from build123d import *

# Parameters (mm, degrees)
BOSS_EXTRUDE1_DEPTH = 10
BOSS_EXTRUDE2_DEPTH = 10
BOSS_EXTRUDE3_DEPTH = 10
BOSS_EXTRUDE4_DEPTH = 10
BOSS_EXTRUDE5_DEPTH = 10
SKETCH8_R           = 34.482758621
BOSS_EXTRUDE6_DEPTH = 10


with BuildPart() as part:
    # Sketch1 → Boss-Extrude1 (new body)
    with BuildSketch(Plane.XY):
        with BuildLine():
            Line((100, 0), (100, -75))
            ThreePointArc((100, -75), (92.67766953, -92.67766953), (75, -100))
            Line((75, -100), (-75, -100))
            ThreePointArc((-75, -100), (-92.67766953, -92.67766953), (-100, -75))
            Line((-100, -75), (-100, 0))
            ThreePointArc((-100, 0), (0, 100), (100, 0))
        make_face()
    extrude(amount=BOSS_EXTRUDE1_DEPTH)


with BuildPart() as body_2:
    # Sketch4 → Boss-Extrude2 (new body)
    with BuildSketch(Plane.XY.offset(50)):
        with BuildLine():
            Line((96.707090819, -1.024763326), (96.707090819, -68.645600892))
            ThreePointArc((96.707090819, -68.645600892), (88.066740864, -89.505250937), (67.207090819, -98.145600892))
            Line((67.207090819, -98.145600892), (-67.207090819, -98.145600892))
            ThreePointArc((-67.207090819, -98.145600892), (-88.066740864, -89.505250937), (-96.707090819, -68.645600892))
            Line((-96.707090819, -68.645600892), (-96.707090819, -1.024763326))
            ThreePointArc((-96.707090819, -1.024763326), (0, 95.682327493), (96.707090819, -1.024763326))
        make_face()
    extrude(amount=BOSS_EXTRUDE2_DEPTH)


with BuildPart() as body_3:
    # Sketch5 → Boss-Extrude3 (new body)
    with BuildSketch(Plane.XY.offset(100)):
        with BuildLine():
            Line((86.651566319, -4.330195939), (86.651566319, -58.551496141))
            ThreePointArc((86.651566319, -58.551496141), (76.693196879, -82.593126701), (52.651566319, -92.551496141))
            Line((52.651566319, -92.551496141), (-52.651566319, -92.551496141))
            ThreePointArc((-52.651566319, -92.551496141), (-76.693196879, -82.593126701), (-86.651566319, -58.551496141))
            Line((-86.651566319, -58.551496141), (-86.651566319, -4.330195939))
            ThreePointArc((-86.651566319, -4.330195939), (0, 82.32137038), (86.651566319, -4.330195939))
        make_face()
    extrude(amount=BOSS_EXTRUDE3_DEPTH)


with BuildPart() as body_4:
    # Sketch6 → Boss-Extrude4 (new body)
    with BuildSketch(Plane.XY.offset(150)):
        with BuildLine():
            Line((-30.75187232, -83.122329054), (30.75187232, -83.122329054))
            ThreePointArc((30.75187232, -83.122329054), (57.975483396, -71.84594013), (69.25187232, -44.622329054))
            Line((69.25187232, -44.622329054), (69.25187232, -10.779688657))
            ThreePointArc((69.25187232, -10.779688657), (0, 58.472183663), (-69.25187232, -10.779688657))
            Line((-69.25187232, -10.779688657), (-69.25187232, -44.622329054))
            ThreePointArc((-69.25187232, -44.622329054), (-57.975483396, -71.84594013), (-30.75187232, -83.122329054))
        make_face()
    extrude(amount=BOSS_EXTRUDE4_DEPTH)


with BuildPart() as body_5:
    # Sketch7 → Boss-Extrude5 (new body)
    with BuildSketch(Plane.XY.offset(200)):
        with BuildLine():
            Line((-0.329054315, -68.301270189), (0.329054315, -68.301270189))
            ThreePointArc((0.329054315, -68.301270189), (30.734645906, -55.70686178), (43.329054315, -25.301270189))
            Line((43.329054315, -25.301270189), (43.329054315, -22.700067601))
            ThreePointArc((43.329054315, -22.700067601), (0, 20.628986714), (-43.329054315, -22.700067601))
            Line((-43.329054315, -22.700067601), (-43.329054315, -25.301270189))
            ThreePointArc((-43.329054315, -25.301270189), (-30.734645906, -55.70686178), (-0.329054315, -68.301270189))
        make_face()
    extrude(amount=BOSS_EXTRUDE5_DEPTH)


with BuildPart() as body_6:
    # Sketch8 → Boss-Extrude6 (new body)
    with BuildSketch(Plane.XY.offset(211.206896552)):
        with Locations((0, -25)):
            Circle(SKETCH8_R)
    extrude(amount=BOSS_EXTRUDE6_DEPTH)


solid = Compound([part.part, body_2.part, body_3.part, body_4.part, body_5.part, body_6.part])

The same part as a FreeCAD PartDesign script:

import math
import FreeCAD as App
import Part
import Sketcher
Q = App.Units.Quantity

doc = App.newDocument("Part")
body = doc.addObject("PartDesign::Body", "Body")

# Sketch on XY plane
sketch1 = doc.addObject("Sketcher::SketchObject", "Sketch")
body.addObject(sketch1)
sketch1.AttachmentSupport = (doc.XY_Plane, [""])
sketch1.MapMode = "FlatFace"
sketch1.addGeometry([
    Part.LineSegment(App.Vector(100, -75, 0), App.Vector(100, 0, 0)),  # 0
    Part.ArcOfCircle(Part.Circle(App.Vector(0, 0, 0), App.Vector(0, 0, 1), 100), math.radians(0), math.radians(180)),  # 1
    Part.LineSegment(App.Vector(-100, 0, 0), App.Vector(-100, -75, 0)),  # 2
    Part.ArcOfCircle(Part.Circle(App.Vector(-75, -75, 0), App.Vector(0, 0, 1), 25), math.radians(180), math.radians(270)),  # 3
    Part.LineSegment(App.Vector(-75, -100, 0), App.Vector(75, -100, 0)),  # 4
    Part.ArcOfCircle(Part.Circle(App.Vector(75, -75, 0), App.Vector(0, 0, 1), 25), math.radians(-90), math.radians(0)),  # 5
], False)
sketch1.addConstraint([
    Sketcher.Constraint("Tangent", 0, 2, 1, 1),
    Sketcher.Constraint("Tangent", 1, 2, 2, 1),
    Sketcher.Constraint("Tangent", 2, 2, 3, 1),
    Sketcher.Constraint("Tangent", 3, 2, 4, 1),
    Sketcher.Constraint("Tangent", 4, 2, 5, 1),
    Sketcher.Constraint("Tangent", 5, 2, 0, 1),
    Sketcher.Constraint("Vertical", 0),
    Sketcher.Constraint("Vertical", 2),
    Sketcher.Constraint("Horizontal", 4),
    Sketcher.Constraint("Coincident", 1, 3, -1, 1),
    Sketcher.Constraint("Equal", 3, 5),
    Sketcher.Constraint("Radius", 1, Q("100 mm")),
    Sketcher.Constraint("Radius", 3, Q("25 mm")),
    Sketcher.Constraint("DistanceY", 0, 1, 0, 2, Q("75 mm")),
])
pad1 = doc.addObject("PartDesign::Pad", "Pad")
body.addObject(pad1)
pad1.Profile = sketch1
pad1.Length = 10
body2 = doc.addObject("PartDesign::Body", "Body001")

# Sketch on XY plane
sketch2 = doc.addObject("Sketcher::SketchObject", "Sketch001")
body2.addObject(sketch2)
sketch2.AttachmentSupport = (doc.getObject("XY_Plane001"), [""])
sketch2.MapMode = "FlatFace"
sketch2.AttachmentOffset = App.Placement(App.Vector(0, 0, 50), App.Rotation())
sketch2.addGeometry([
    Part.LineSegment(App.Vector(97, -69, 0), App.Vector(97, -1, 0)),  # 0
    Part.ArcOfCircle(Part.Circle(App.Vector(0, -1, 0), App.Vector(0, 0, 1), 97), math.radians(0), math.radians(180)),  # 1
    Part.LineSegment(App.Vector(-97, -1, 0), App.Vector(-97, -69, 0)),  # 2
    Part.ArcOfCircle(Part.Circle(App.Vector(-67, -69, 0), App.Vector(0, 0, 1), 30), math.radians(180), math.radians(270)),  # 3
    Part.LineSegment(App.Vector(-67, -98, 0), App.Vector(67, -98, 0)),  # 4
    Part.ArcOfCircle(Part.Circle(App.Vector(67, -69, 0), App.Vector(0, 0, 1), 30), math.radians(-90), math.radians(0)),  # 5
], False)
sketch2.addConstraint([
    Sketcher.Constraint("Tangent", 0, 2, 1, 1),
    Sketcher.Constraint("Tangent", 1, 2, 2, 1),
    Sketcher.Constraint("Tangent", 2, 2, 3, 1),
    Sketcher.Constraint("Tangent", 3, 2, 4, 1),
    Sketcher.Constraint("Tangent", 4, 2, 5, 1),
    Sketcher.Constraint("Tangent", 5, 2, 0, 1),
    Sketcher.Constraint("Vertical", 0),
    Sketcher.Constraint("Vertical", 2),
    Sketcher.Constraint("Horizontal", 4),
    Sketcher.Constraint("Equal", 3, 5),
    Sketcher.Constraint("PointOnObject", 1, 3, -2),
    Sketcher.Constraint("Radius", 3, Q("29.5 mm")),
    Sketcher.Constraint("Radius", 1, Q("96.707091 mm")),
    Sketcher.Constraint("DistanceY", 3, 3, -1, 1, Q("68.645601 mm")),
    Sketcher.Constraint("DistanceY", 0, 1, 0, 2, Q("67.620838 mm")),
])
pad2 = doc.addObject("PartDesign::Pad", "Pad001")
body2.addObject(pad2)
pad2.Profile = sketch2
pad2.Length = 10
body3 = doc.addObject("PartDesign::Body", "Body002")

# Sketch on XY plane
sketch3 = doc.addObject("Sketcher::SketchObject", "Sketch002")
body3.addObject(sketch3)
sketch3.AttachmentSupport = (doc.getObject("XY_Plane002"), [""])
sketch3.MapMode = "FlatFace"
sketch3.AttachmentOffset = App.Placement(App.Vector(0, 0, 100), App.Rotation())
sketch3.addGeometry([
    Part.LineSegment(App.Vector(87, -59, 0), App.Vector(87, -4, 0)),  # 0
    Part.ArcOfCircle(Part.Circle(App.Vector(0, -4, 0), App.Vector(0, 0, 1), 87), math.radians(0), math.radians(180)),  # 1
    Part.LineSegment(App.Vector(-87, -4, 0), App.Vector(-87, -59, 0)),  # 2
    Part.ArcOfCircle(Part.Circle(App.Vector(-53, -59, 0), App.Vector(0, 0, 1), 34), math.radians(-180), math.radians(-90)),  # 3
    Part.LineSegment(App.Vector(-53, -93, 0), App.Vector(53, -93, 0)),  # 4
    Part.ArcOfCircle(Part.Circle(App.Vector(53, -59, 0), App.Vector(0, 0, 1), 34), math.radians(-90), math.radians(0)),  # 5
], False)
sketch3.addConstraint([
    Sketcher.Constraint("Tangent", 0, 2, 1, 1),
    Sketcher.Constraint("Tangent", 1, 2, 2, 1),
    Sketcher.Constraint("Tangent", 2, 2, 3, 1),
    Sketcher.Constraint("Tangent", 3, 2, 4, 1),
    Sketcher.Constraint("Tangent", 4, 2, 5, 1),
    Sketcher.Constraint("Tangent", 5, 2, 0, 1),
    Sketcher.Constraint("Vertical", 0),
    Sketcher.Constraint("Vertical", 2),
    Sketcher.Constraint("Horizontal", 4),
    Sketcher.Constraint("Equal", 3, 5),
    Sketcher.Constraint("PointOnObject", 1, 3, -2),
    Sketcher.Constraint("Radius", 3, Q("34 mm")),
    Sketcher.Constraint("DistanceY", 0, 1, 0, 2, Q("54.2213 mm")),
    Sketcher.Constraint("Radius", 1, Q("86.651566 mm")),
    Sketcher.Constraint("DistanceY", 1, 3, -1, 1, Q("4.330196 mm")),
])
pad3 = doc.addObject("PartDesign::Pad", "Pad002")
body3.addObject(pad3)
pad3.Profile = sketch3
pad3.Length = 10
body4 = doc.addObject("PartDesign::Body", "Body003")

# Sketch on XY plane
sketch4 = doc.addObject("Sketcher::SketchObject", "Sketch003")
body4.addObject(sketch4)
sketch4.AttachmentSupport = (doc.getObject("XY_Plane003"), [""])
sketch4.MapMode = "FlatFace"
sketch4.AttachmentOffset = App.Placement(App.Vector(0, 0, 150), App.Rotation())
sketch4.addGeometry([
    Part.LineSegment(App.Vector(-31, -83, 0), App.Vector(31, -83, 0)),  # 0
    Part.ArcOfCircle(Part.Circle(App.Vector(31, -45, 0), App.Vector(0, 0, 1), 38), math.radians(-90), math.radians(0)),  # 1
    Part.LineSegment(App.Vector(69, -45, 0), App.Vector(69, -11, 0)),  # 2
    Part.ArcOfCircle(Part.Circle(App.Vector(0, -11, 0), App.Vector(0, 0, 1), 69), math.radians(0), math.radians(180)),  # 3
    Part.LineSegment(App.Vector(-69, -11, 0), App.Vector(-69, -45, 0)),  # 4
    Part.ArcOfCircle(Part.Circle(App.Vector(-31, -45, 0), App.Vector(0, 0, 1), 38), math.radians(180), math.radians(270)),  # 5
], False)
sketch4.addConstraint([
    Sketcher.Constraint("Tangent", 0, 2, 1, 1),
    Sketcher.Constraint("Tangent", 1, 2, 2, 1),
    Sketcher.Constraint("Tangent", 2, 2, 3, 1),
    Sketcher.Constraint("Tangent", 3, 2, 4, 1),
    Sketcher.Constraint("Tangent", 4, 2, 5, 1),
    Sketcher.Constraint("Tangent", 5, 2, 0, 1),
    Sketcher.Constraint("Horizontal", 0),
    Sketcher.Constraint("Vertical", 2),
    Sketcher.Constraint("Vertical", 4),
    Sketcher.Constraint("Equal", 1, 5),
    Sketcher.Constraint("PointOnObject", 3, 3, -2),
    Sketcher.Constraint("Radius", 1, Q("38.5 mm")),
    Sketcher.Constraint("Radius", 3, Q("69.251872 mm")),
    Sketcher.Constraint("DistanceY", 2, 1, 2, 2, Q("33.84264 mm")),
    Sketcher.Constraint("DistanceY", 1, 3, -1, 1, Q("44.622329 mm")),
])
pad4 = doc.addObject("PartDesign::Pad", "Pad003")
body4.addObject(pad4)
pad4.Profile = sketch4
pad4.Length = 10
body5 = doc.addObject("PartDesign::Body", "Body004")

# Sketch on XY plane
sketch5 = doc.addObject("Sketcher::SketchObject", "Sketch004")
body5.addObject(sketch5)
sketch5.AttachmentSupport = (doc.getObject("XY_Plane004"), [""])
sketch5.MapMode = "FlatFace"
sketch5.AttachmentOffset = App.Placement(App.Vector(0, 0, 200), App.Rotation())
sketch5.addGeometry([
    Part.LineSegment(App.Vector(-0.3, -68.3, 0), App.Vector(0.3, -68.3, 0)),  # 0
    Part.ArcOfCircle(Part.Circle(App.Vector(0.3, -25.3, 0), App.Vector(0, 0, 1), 43), math.radians(-90), math.radians(0)),  # 1
    Part.LineSegment(App.Vector(43.3, -25.3, 0), App.Vector(43.3, -22.7, 0)),  # 2
    Part.ArcOfCircle(Part.Circle(App.Vector(0, -22.7, 0), App.Vector(0, 0, 1), 43.3), math.radians(0), math.radians(180)),  # 3
    Part.LineSegment(App.Vector(-43.3, -22.7, 0), App.Vector(-43.3, -25.3, 0)),  # 4
    Part.ArcOfCircle(Part.Circle(App.Vector(-0.3, -25.3, 0), App.Vector(0, 0, 1), 43), math.radians(180), math.radians(270)),  # 5
], False)
sketch5.addConstraint([
    Sketcher.Constraint("Tangent", 0, 2, 1, 1),
    Sketcher.Constraint("Tangent", 1, 2, 2, 1),
    Sketcher.Constraint("Tangent", 2, 2, 3, 1),
    Sketcher.Constraint("Tangent", 3, 2, 4, 1),
    Sketcher.Constraint("Tangent", 4, 2, 5, 1),
    Sketcher.Constraint("Tangent", 5, 2, 0, 1),
    Sketcher.Constraint("Horizontal", 0),
    Sketcher.Constraint("Vertical", 2),
    Sketcher.Constraint("Vertical", 4),
    Sketcher.Constraint("Equal", 1, 5),
    Sketcher.Constraint("PointOnObject", 3, 3, -2),
    Sketcher.Constraint("Radius", 1, Q("43 mm")),
    Sketcher.Constraint("Radius", 3, Q("43.329054 mm")),
    Sketcher.Constraint("DistanceY", 2, 1, 2, 2, Q("2.601203 mm")),
    Sketcher.Constraint("DistanceY", 1, 3, -1, 1, Q("25.30127 mm")),
])
pad5 = doc.addObject("PartDesign::Pad", "Pad004")
body5.addObject(pad5)
pad5.Profile = sketch5
pad5.Length = 10
body6 = doc.addObject("PartDesign::Body", "Body005")

# Sketch on XY plane
sketch6 = doc.addObject("Sketcher::SketchObject", "Sketch005")
body6.addObject(sketch6)
sketch6.AttachmentSupport = (doc.getObject("XY_Plane005"), [""])
sketch6.MapMode = "FlatFace"
sketch6.AttachmentOffset = App.Placement(App.Vector(0, 0, 211.206897), App.Rotation())
sketch6.addGeometry(Part.Circle(App.Vector(0, -25, 0), App.Vector(0, 0, 1), 34), False)
sketch6.addConstraint([
    Sketcher.Constraint("PointOnObject", 0, 3, -2),
    Sketcher.Constraint("DistanceY", 0, 3, -1, 1, Q("25 mm")),
    Sketcher.Constraint("Diameter", 0, Q("68.965517 mm")),
])
pad6 = doc.addObject("PartDesign::Pad", "Pad005")
body6.addObject(pad6)
pad6.Profile = sketch6
pad6.Length = 10

doc.recompute()
